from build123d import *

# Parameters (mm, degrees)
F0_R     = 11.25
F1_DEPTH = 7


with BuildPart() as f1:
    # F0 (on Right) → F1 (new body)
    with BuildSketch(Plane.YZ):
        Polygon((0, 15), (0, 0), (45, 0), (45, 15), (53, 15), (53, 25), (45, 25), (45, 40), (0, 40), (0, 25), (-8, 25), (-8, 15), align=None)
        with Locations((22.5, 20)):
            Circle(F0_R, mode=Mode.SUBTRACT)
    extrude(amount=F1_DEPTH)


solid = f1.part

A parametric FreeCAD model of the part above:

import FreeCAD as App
import Part
import Sketcher
from FreeCAD import Vector


def add_polygon(sketch, points):
    """Adds a closed chain of lines whose ends are joined by coincident constraints."""
    first, n = sketch.GeometryCount, len(points)
    for a, b in zip(points, points[1:] + points[:1]):
        sketch.addGeometry(Part.LineSegment(App.Vector(*a, 0), App.Vector(*b, 0)), False)
    for i in range(n):
        sketch.addConstraint(Sketcher.Constraint("Coincident", first + i, 2, first + (i + 1) % n, 1))

doc = App.newDocument("Part")
body = doc.addObject("PartDesign::Body", "Body")

# Sketch on YZ plane
sketch1 = doc.addObject("Sketcher::SketchObject", "Sketch")
body.addObject(sketch1)
sketch1.AttachmentSupport = (doc.YZ_Plane, [""])
sketch1.MapMode = "FlatFace"
add_polygon(sketch1, [(0, 15), (0, 0), (45, 0), (45, 15), (53, 15), (53, 25), (45, 25), (45, 40), (0, 40), (0, 25), (-8, 25), (-8, 15)])  # lines 0-11
sketch1.addGeometry(Part.Circle(Vector(22, 20, 0), Vector(0, 0, 1), 11), False)  # 12
sketch1.addConstraint([
    Sketcher.Constraint("Vertical", 0),
    Sketcher.Constraint("Horizontal", 1),
    Sketcher.Constraint("Vertical", 2),
    Sketcher.Constraint("Horizontal", 3),
    Sketcher.Constraint("Vertical", 4),
    Sketcher.Constraint("Horizontal", 5),
    Sketcher.Constraint("Vertical", 6),
    Sketcher.Constraint("Horizontal", 7),
    Sketcher.Constraint("Vertical", 8),
    Sketcher.Constraint("Horizontal", 9),
    Sketcher.Constraint("Vertical", 10),
    Sketcher.Constraint("Horizontal", 11),
    Sketcher.Constraint("Coincident", 0, 2, -1, 1),
    Sketcher.Constraint("PointOnObject", 7, 2, -2),
    Sketcher.Constraint("Horizontal", 5, 2, 8, 2),
    Sketcher.Constraint("Horizontal", 3, 2, 10, 2),
    Sketcher.Constraint("Vertical", 2, 2, 5, 2),
    Sketcher.Constraint("Equal", 5, 9),
    Sketcher.Constraint("Equal", 2, 6),
    Sketcher.Constraint("Diameter", 12, 22.5),
    Sketcher.Constraint("DistanceX", 1, 1, 1, 2, 45.0),
    Sketcher.Constraint("DistanceX", 3, 1, 3, 2, 8.0),
    Sketcher.Constraint("DistanceY", 0, 2, 0, 1, 15.0),
    Sketcher.Constraint("DistanceY", 4, 1, 4, 2, 10.0),
    Sketcher.Constraint("DistanceY", -1, 1, 12, 3, 20.0),
    Sketcher.Constraint("DistanceX", -1, 1, 12, 3, 22.5),
])
pad1 = doc.addObject("PartDesign::Pad", "Pad")
body.addObject(pad1)
pad1.Profile = sketch1
pad1.Length = 7

doc.recompute()
